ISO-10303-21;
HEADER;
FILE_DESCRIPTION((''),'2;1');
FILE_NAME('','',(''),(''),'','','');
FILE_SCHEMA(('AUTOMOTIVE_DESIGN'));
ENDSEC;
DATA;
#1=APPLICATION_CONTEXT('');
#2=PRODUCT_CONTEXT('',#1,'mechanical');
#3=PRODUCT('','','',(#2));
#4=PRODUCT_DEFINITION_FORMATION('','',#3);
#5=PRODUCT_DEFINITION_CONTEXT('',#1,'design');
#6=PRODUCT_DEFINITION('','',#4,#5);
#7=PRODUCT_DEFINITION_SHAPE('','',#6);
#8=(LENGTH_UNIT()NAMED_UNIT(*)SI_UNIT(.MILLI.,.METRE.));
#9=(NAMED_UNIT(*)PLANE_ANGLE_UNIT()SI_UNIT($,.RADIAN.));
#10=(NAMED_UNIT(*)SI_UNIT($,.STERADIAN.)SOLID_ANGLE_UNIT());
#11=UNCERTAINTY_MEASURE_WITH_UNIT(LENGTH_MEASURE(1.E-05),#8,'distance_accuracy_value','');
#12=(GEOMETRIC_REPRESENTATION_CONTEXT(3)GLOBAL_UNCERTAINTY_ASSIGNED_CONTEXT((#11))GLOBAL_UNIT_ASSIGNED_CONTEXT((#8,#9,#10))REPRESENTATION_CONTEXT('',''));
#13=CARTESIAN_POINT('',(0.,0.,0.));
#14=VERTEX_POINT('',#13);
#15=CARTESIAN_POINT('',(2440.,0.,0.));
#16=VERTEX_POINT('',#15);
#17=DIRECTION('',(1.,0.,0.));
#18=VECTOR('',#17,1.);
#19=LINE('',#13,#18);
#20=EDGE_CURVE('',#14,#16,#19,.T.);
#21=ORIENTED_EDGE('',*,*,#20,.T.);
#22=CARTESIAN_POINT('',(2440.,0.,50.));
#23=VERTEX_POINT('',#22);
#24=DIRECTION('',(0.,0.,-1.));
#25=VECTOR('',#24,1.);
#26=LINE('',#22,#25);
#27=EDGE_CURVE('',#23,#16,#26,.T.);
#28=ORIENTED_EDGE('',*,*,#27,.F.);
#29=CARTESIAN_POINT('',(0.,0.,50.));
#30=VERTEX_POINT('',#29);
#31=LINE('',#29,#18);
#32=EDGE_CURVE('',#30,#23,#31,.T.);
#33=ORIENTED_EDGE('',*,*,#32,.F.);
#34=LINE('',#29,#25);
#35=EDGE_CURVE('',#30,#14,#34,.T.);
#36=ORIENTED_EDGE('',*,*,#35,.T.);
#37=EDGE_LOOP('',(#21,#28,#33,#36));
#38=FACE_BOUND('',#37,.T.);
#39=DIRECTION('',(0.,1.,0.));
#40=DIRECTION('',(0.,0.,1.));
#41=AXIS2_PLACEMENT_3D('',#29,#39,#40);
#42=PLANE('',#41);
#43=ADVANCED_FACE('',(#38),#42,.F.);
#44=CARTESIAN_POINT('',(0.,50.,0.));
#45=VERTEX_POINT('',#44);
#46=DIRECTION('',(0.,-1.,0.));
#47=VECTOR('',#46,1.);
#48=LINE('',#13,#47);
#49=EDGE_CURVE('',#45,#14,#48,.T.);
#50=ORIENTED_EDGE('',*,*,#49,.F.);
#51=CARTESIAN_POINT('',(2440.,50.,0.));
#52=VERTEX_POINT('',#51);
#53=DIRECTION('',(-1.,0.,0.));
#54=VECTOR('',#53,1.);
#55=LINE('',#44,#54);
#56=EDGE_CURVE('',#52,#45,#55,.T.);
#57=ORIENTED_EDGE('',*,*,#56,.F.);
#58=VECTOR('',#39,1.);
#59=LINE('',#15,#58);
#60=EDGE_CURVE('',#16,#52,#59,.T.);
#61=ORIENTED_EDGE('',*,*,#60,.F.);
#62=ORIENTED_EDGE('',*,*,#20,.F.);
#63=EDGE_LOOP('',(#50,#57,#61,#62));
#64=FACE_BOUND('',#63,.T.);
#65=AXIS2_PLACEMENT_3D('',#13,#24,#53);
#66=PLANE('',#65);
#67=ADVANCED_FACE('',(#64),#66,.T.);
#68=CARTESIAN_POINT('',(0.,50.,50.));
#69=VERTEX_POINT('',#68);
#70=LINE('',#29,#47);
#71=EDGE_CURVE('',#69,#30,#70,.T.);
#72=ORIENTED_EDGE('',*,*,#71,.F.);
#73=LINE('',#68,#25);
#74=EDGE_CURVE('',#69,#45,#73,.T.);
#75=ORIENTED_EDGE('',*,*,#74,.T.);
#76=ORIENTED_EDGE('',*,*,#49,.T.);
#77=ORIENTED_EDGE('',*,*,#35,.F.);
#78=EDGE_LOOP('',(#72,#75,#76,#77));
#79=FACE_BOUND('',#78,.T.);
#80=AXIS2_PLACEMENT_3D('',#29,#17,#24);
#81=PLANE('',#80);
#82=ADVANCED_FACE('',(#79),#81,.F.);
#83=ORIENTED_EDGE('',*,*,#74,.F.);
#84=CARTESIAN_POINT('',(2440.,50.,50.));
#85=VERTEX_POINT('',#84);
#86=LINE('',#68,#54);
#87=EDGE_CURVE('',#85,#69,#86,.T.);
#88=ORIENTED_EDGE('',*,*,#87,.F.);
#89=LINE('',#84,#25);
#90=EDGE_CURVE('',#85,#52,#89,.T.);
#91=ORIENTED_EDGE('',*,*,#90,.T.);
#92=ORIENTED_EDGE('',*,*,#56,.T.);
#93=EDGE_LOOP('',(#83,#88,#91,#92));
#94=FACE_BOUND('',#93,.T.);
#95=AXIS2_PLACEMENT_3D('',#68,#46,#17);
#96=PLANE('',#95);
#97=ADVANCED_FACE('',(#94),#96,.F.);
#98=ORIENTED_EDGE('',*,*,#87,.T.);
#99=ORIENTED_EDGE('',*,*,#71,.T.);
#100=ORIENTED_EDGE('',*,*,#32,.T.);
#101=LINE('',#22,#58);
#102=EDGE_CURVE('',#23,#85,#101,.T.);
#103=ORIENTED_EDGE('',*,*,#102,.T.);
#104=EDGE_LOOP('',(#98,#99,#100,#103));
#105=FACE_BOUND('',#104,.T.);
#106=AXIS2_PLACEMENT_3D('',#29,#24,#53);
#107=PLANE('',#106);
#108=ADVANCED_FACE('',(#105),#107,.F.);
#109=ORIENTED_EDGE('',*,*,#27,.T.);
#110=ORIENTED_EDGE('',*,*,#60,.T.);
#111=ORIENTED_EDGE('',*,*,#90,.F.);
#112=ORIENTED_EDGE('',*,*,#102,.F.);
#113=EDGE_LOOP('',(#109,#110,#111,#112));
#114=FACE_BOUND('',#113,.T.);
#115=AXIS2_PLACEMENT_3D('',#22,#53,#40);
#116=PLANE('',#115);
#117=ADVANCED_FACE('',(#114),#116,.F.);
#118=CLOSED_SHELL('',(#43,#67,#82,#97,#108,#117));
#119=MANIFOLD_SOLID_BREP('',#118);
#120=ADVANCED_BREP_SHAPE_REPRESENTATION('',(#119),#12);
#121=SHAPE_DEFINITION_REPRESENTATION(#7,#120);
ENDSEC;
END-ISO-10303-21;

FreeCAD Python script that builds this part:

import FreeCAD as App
import Part
import Sketcher
from FreeCAD import Vector

doc = App.newDocument("Part")
body = doc.addObject("PartDesign::Body", "Body")

sketch1 = body.newObject("Sketcher::SketchObject", "Sketch")
sketch1.AttachmentSupport = (doc.getObject("XY_Plane"), [""])
sketch1.MapMode = "FlatFace"
sketch1.addGeometry(Part.LineSegment(Vector(0, 50, 0), Vector(0, 0, 0)), False)
sketch1.addGeometry(Part.LineSegment(Vector(0, 0, 0), Vector(2440, 0, 0)), False)
sketch1.addGeometry(Part.LineSegment(Vector(2440, 0, 0), Vector(2440, 50, 0)), False)
sketch1.addGeometry(Part.LineSegment(Vector(2440, 50, 0), Vector(0, 50, 0)), False)
sketch1.addConstraint(Sketcher.Constraint("Coincident", 0, 2, 1, 1))
sketch1.addConstraint(Sketcher.Constraint("Coincident", 1, 2, 2, 1))
sketch1.addConstraint(Sketcher.Constraint("Coincident", 2, 2, 3, 1))
sketch1.addConstraint(Sketcher.Constraint("Coincident", 3, 2, 0, 1))
sketch1.addConstraint(Sketcher.Constraint("Vertical", 0))
sketch1.addConstraint(Sketcher.Constraint("Horizontal", 1))
sketch1.addConstraint(Sketcher.Constraint("Vertical", 2))
sketch1.addConstraint(Sketcher.Constraint("Horizontal", 3))
sketch1.addConstraint(Sketcher.Constraint("Coincident", 0, 2, -1, 1))
sketch1.addConstraint(Sketcher.Constraint("DistanceX", 1, 1, 1, 2, 2440.0))
sketch1.addConstraint(Sketcher.Constraint("DistanceY", 0, 2, 0, 1, 50.0))
pad1 = body.newObject("PartDesign::Pad", "Pad")
pad1.Profile = sketch1
pad1.Length = 50

doc.recompute()
